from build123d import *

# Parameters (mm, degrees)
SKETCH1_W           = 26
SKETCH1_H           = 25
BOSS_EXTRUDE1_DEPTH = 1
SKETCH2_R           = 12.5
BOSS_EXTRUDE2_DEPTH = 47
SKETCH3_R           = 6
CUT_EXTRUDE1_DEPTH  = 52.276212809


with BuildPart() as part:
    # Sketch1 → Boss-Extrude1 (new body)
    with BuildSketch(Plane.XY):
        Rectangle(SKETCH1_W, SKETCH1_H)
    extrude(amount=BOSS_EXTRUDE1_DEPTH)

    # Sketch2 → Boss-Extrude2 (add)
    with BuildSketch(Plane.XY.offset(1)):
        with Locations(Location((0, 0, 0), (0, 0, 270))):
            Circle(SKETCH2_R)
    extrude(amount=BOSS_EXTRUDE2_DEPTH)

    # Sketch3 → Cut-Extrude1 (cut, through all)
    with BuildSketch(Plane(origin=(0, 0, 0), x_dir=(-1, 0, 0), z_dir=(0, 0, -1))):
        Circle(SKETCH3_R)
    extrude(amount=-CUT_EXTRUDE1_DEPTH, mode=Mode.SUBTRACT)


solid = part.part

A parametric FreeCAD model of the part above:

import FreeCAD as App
import Part
import Sketcher

doc = App.newDocument("Part")
params = doc.addObject("Spreadsheet::Sheet", "Params")
for row, (alias, value) in enumerate([
    ("sketch1_width", "26 mm"),
    ("sketch1_height", "25 mm"),
    ("pad1_length", "1 mm"),
    ("sketch2_diameter", "25 mm"),
    ("pad2_length", "47 mm"),
    ("sketch3_diameter", "12 mm"),
], start=1):
    params.set(f"A{row}", alias)
    params.set(f"B{row}", "=" + value)
    params.setAlias(f"B{row}", alias)

body = doc.addObject("PartDesign::Body", "Body")

# Sketch on XY plane
sketch1 = doc.addObject("Sketcher::SketchObject", "Sketch")
body.addObject(sketch1)
sketch1.AttachmentSupport = (doc.XY_Plane, [""])
sketch1.MapMode = "FlatFace"
sketch1.addGeometry(Part.LineSegment(App.Vector(-13, 12, 0), App.Vector(-13, -12, 0)), False)
sketch1.addGeometry(Part.LineSegment(App.Vector(-13, -12, 0), App.Vector(13, -12, 0)), False)
sketch1.addGeometry(Part.LineSegment(App.Vector(13, -12, 0), App.Vector(13, 12, 0)), False)
sketch1.addGeometry(Part.LineSegment(App.Vector(13, 12, 0), App.Vector(-13, 12, 0)), False)
sketch1.addConstraint(Sketcher.Constraint("Coincident", 0, 2, 1, 1))
sketch1.addConstraint(Sketcher.Constraint("Coincident", 1, 2, 2, 1))
sketch1.addConstraint(Sketcher.Constraint("Coincident", 2, 2, 3, 1))
sketch1.addConstraint(Sketcher.Constraint("Coincident", 3, 2, 0, 1))
sketch1.addConstraint(Sketcher.Constraint("Vertical", 0))
sketch1.addConstraint(Sketcher.Constraint("Horizontal", 1))
sketch1.addConstraint(Sketcher.Constraint("Vertical", 2))
sketch1.addConstraint(Sketcher.Constraint("Horizontal", 3))
sketch1.addConstraint(Sketcher.Constraint("Symmetric", 0, 2, 2, 2, -1, 1))
sketch1.addConstraint(Sketcher.Constraint("DistanceX", 1, 1, 1, 2, 26.0))
sketch1.addConstraint(Sketcher.Constraint("DistanceY", 0, 2, 0, 1, 25.0))
sketch1.setExpression("Constraints[9]", "Params.sketch1_width")
sketch1.setExpression("Constraints[10]", "Params.sketch1_height")
pad1 = doc.addObject("PartDesign::Pad", "Pad")
body.addObject(pad1)
pad1.Profile = sketch1
pad1.setExpression("Length", "Params.pad1_length")

# Sketch on XY plane
sketch2 = doc.addObject("Sketcher::SketchObject", "Sketch001")
body.addObject(sketch2)
sketch2.AttachmentSupport = (doc.XY_Plane, [""])
sketch2.MapMode = "FlatFace"
sketch2.AttachmentOffset = App.Placement(App.Vector(0, 0, 1), App.Rotation())
sketch2.addGeometry(Part.Circle(App.Vector(0, 0, 0), App.Vector(0, 0, 1), 12), False)
sketch2.addConstraint(Sketcher.Constraint("Coincident", 0, 3, -1, 1))
sketch2.addConstraint(Sketcher.Constraint("Diameter", 0, 25.0))
sketch2.setExpression("Constraints[1]", "Params.sketch2_diameter")
pad2 = doc.addObject("PartDesign::Pad", "Pad001")
body.addObject(pad2)
pad2.Profile = sketch2
pad2.setExpression("Length", "Params.pad2_length")

# Sketch on XY plane
sketch3 = doc.addObject("Sketcher::SketchObject", "Sketch002")
body.addObject(sketch3)
sketch3.AttachmentSupport = (doc.XY_Plane, [""])
sketch3.MapMode = "FlatFace"
sketch3.addGeometry(Part.Circle(App.Vector(0, 0, 0), App.Vector(0, 0, 1), 6), False)
sketch3.addConstraint(Sketcher.Constraint("Coincident", 0, 3, -1, 1))
sketch3.addConstraint(Sketcher.Constraint("Diameter", 0, 12.0))
sketch3.setExpression("Constraints[1]", "Params.sketch3_diameter")
pocket1 = doc.addObject("PartDesign::Pocket", "Pocket")
body.addObject(pocket1)
pocket1.Profile = sketch3
pocket1.Type = "ThroughAll"
pocket1.Reversed = True

doc.recompute()
